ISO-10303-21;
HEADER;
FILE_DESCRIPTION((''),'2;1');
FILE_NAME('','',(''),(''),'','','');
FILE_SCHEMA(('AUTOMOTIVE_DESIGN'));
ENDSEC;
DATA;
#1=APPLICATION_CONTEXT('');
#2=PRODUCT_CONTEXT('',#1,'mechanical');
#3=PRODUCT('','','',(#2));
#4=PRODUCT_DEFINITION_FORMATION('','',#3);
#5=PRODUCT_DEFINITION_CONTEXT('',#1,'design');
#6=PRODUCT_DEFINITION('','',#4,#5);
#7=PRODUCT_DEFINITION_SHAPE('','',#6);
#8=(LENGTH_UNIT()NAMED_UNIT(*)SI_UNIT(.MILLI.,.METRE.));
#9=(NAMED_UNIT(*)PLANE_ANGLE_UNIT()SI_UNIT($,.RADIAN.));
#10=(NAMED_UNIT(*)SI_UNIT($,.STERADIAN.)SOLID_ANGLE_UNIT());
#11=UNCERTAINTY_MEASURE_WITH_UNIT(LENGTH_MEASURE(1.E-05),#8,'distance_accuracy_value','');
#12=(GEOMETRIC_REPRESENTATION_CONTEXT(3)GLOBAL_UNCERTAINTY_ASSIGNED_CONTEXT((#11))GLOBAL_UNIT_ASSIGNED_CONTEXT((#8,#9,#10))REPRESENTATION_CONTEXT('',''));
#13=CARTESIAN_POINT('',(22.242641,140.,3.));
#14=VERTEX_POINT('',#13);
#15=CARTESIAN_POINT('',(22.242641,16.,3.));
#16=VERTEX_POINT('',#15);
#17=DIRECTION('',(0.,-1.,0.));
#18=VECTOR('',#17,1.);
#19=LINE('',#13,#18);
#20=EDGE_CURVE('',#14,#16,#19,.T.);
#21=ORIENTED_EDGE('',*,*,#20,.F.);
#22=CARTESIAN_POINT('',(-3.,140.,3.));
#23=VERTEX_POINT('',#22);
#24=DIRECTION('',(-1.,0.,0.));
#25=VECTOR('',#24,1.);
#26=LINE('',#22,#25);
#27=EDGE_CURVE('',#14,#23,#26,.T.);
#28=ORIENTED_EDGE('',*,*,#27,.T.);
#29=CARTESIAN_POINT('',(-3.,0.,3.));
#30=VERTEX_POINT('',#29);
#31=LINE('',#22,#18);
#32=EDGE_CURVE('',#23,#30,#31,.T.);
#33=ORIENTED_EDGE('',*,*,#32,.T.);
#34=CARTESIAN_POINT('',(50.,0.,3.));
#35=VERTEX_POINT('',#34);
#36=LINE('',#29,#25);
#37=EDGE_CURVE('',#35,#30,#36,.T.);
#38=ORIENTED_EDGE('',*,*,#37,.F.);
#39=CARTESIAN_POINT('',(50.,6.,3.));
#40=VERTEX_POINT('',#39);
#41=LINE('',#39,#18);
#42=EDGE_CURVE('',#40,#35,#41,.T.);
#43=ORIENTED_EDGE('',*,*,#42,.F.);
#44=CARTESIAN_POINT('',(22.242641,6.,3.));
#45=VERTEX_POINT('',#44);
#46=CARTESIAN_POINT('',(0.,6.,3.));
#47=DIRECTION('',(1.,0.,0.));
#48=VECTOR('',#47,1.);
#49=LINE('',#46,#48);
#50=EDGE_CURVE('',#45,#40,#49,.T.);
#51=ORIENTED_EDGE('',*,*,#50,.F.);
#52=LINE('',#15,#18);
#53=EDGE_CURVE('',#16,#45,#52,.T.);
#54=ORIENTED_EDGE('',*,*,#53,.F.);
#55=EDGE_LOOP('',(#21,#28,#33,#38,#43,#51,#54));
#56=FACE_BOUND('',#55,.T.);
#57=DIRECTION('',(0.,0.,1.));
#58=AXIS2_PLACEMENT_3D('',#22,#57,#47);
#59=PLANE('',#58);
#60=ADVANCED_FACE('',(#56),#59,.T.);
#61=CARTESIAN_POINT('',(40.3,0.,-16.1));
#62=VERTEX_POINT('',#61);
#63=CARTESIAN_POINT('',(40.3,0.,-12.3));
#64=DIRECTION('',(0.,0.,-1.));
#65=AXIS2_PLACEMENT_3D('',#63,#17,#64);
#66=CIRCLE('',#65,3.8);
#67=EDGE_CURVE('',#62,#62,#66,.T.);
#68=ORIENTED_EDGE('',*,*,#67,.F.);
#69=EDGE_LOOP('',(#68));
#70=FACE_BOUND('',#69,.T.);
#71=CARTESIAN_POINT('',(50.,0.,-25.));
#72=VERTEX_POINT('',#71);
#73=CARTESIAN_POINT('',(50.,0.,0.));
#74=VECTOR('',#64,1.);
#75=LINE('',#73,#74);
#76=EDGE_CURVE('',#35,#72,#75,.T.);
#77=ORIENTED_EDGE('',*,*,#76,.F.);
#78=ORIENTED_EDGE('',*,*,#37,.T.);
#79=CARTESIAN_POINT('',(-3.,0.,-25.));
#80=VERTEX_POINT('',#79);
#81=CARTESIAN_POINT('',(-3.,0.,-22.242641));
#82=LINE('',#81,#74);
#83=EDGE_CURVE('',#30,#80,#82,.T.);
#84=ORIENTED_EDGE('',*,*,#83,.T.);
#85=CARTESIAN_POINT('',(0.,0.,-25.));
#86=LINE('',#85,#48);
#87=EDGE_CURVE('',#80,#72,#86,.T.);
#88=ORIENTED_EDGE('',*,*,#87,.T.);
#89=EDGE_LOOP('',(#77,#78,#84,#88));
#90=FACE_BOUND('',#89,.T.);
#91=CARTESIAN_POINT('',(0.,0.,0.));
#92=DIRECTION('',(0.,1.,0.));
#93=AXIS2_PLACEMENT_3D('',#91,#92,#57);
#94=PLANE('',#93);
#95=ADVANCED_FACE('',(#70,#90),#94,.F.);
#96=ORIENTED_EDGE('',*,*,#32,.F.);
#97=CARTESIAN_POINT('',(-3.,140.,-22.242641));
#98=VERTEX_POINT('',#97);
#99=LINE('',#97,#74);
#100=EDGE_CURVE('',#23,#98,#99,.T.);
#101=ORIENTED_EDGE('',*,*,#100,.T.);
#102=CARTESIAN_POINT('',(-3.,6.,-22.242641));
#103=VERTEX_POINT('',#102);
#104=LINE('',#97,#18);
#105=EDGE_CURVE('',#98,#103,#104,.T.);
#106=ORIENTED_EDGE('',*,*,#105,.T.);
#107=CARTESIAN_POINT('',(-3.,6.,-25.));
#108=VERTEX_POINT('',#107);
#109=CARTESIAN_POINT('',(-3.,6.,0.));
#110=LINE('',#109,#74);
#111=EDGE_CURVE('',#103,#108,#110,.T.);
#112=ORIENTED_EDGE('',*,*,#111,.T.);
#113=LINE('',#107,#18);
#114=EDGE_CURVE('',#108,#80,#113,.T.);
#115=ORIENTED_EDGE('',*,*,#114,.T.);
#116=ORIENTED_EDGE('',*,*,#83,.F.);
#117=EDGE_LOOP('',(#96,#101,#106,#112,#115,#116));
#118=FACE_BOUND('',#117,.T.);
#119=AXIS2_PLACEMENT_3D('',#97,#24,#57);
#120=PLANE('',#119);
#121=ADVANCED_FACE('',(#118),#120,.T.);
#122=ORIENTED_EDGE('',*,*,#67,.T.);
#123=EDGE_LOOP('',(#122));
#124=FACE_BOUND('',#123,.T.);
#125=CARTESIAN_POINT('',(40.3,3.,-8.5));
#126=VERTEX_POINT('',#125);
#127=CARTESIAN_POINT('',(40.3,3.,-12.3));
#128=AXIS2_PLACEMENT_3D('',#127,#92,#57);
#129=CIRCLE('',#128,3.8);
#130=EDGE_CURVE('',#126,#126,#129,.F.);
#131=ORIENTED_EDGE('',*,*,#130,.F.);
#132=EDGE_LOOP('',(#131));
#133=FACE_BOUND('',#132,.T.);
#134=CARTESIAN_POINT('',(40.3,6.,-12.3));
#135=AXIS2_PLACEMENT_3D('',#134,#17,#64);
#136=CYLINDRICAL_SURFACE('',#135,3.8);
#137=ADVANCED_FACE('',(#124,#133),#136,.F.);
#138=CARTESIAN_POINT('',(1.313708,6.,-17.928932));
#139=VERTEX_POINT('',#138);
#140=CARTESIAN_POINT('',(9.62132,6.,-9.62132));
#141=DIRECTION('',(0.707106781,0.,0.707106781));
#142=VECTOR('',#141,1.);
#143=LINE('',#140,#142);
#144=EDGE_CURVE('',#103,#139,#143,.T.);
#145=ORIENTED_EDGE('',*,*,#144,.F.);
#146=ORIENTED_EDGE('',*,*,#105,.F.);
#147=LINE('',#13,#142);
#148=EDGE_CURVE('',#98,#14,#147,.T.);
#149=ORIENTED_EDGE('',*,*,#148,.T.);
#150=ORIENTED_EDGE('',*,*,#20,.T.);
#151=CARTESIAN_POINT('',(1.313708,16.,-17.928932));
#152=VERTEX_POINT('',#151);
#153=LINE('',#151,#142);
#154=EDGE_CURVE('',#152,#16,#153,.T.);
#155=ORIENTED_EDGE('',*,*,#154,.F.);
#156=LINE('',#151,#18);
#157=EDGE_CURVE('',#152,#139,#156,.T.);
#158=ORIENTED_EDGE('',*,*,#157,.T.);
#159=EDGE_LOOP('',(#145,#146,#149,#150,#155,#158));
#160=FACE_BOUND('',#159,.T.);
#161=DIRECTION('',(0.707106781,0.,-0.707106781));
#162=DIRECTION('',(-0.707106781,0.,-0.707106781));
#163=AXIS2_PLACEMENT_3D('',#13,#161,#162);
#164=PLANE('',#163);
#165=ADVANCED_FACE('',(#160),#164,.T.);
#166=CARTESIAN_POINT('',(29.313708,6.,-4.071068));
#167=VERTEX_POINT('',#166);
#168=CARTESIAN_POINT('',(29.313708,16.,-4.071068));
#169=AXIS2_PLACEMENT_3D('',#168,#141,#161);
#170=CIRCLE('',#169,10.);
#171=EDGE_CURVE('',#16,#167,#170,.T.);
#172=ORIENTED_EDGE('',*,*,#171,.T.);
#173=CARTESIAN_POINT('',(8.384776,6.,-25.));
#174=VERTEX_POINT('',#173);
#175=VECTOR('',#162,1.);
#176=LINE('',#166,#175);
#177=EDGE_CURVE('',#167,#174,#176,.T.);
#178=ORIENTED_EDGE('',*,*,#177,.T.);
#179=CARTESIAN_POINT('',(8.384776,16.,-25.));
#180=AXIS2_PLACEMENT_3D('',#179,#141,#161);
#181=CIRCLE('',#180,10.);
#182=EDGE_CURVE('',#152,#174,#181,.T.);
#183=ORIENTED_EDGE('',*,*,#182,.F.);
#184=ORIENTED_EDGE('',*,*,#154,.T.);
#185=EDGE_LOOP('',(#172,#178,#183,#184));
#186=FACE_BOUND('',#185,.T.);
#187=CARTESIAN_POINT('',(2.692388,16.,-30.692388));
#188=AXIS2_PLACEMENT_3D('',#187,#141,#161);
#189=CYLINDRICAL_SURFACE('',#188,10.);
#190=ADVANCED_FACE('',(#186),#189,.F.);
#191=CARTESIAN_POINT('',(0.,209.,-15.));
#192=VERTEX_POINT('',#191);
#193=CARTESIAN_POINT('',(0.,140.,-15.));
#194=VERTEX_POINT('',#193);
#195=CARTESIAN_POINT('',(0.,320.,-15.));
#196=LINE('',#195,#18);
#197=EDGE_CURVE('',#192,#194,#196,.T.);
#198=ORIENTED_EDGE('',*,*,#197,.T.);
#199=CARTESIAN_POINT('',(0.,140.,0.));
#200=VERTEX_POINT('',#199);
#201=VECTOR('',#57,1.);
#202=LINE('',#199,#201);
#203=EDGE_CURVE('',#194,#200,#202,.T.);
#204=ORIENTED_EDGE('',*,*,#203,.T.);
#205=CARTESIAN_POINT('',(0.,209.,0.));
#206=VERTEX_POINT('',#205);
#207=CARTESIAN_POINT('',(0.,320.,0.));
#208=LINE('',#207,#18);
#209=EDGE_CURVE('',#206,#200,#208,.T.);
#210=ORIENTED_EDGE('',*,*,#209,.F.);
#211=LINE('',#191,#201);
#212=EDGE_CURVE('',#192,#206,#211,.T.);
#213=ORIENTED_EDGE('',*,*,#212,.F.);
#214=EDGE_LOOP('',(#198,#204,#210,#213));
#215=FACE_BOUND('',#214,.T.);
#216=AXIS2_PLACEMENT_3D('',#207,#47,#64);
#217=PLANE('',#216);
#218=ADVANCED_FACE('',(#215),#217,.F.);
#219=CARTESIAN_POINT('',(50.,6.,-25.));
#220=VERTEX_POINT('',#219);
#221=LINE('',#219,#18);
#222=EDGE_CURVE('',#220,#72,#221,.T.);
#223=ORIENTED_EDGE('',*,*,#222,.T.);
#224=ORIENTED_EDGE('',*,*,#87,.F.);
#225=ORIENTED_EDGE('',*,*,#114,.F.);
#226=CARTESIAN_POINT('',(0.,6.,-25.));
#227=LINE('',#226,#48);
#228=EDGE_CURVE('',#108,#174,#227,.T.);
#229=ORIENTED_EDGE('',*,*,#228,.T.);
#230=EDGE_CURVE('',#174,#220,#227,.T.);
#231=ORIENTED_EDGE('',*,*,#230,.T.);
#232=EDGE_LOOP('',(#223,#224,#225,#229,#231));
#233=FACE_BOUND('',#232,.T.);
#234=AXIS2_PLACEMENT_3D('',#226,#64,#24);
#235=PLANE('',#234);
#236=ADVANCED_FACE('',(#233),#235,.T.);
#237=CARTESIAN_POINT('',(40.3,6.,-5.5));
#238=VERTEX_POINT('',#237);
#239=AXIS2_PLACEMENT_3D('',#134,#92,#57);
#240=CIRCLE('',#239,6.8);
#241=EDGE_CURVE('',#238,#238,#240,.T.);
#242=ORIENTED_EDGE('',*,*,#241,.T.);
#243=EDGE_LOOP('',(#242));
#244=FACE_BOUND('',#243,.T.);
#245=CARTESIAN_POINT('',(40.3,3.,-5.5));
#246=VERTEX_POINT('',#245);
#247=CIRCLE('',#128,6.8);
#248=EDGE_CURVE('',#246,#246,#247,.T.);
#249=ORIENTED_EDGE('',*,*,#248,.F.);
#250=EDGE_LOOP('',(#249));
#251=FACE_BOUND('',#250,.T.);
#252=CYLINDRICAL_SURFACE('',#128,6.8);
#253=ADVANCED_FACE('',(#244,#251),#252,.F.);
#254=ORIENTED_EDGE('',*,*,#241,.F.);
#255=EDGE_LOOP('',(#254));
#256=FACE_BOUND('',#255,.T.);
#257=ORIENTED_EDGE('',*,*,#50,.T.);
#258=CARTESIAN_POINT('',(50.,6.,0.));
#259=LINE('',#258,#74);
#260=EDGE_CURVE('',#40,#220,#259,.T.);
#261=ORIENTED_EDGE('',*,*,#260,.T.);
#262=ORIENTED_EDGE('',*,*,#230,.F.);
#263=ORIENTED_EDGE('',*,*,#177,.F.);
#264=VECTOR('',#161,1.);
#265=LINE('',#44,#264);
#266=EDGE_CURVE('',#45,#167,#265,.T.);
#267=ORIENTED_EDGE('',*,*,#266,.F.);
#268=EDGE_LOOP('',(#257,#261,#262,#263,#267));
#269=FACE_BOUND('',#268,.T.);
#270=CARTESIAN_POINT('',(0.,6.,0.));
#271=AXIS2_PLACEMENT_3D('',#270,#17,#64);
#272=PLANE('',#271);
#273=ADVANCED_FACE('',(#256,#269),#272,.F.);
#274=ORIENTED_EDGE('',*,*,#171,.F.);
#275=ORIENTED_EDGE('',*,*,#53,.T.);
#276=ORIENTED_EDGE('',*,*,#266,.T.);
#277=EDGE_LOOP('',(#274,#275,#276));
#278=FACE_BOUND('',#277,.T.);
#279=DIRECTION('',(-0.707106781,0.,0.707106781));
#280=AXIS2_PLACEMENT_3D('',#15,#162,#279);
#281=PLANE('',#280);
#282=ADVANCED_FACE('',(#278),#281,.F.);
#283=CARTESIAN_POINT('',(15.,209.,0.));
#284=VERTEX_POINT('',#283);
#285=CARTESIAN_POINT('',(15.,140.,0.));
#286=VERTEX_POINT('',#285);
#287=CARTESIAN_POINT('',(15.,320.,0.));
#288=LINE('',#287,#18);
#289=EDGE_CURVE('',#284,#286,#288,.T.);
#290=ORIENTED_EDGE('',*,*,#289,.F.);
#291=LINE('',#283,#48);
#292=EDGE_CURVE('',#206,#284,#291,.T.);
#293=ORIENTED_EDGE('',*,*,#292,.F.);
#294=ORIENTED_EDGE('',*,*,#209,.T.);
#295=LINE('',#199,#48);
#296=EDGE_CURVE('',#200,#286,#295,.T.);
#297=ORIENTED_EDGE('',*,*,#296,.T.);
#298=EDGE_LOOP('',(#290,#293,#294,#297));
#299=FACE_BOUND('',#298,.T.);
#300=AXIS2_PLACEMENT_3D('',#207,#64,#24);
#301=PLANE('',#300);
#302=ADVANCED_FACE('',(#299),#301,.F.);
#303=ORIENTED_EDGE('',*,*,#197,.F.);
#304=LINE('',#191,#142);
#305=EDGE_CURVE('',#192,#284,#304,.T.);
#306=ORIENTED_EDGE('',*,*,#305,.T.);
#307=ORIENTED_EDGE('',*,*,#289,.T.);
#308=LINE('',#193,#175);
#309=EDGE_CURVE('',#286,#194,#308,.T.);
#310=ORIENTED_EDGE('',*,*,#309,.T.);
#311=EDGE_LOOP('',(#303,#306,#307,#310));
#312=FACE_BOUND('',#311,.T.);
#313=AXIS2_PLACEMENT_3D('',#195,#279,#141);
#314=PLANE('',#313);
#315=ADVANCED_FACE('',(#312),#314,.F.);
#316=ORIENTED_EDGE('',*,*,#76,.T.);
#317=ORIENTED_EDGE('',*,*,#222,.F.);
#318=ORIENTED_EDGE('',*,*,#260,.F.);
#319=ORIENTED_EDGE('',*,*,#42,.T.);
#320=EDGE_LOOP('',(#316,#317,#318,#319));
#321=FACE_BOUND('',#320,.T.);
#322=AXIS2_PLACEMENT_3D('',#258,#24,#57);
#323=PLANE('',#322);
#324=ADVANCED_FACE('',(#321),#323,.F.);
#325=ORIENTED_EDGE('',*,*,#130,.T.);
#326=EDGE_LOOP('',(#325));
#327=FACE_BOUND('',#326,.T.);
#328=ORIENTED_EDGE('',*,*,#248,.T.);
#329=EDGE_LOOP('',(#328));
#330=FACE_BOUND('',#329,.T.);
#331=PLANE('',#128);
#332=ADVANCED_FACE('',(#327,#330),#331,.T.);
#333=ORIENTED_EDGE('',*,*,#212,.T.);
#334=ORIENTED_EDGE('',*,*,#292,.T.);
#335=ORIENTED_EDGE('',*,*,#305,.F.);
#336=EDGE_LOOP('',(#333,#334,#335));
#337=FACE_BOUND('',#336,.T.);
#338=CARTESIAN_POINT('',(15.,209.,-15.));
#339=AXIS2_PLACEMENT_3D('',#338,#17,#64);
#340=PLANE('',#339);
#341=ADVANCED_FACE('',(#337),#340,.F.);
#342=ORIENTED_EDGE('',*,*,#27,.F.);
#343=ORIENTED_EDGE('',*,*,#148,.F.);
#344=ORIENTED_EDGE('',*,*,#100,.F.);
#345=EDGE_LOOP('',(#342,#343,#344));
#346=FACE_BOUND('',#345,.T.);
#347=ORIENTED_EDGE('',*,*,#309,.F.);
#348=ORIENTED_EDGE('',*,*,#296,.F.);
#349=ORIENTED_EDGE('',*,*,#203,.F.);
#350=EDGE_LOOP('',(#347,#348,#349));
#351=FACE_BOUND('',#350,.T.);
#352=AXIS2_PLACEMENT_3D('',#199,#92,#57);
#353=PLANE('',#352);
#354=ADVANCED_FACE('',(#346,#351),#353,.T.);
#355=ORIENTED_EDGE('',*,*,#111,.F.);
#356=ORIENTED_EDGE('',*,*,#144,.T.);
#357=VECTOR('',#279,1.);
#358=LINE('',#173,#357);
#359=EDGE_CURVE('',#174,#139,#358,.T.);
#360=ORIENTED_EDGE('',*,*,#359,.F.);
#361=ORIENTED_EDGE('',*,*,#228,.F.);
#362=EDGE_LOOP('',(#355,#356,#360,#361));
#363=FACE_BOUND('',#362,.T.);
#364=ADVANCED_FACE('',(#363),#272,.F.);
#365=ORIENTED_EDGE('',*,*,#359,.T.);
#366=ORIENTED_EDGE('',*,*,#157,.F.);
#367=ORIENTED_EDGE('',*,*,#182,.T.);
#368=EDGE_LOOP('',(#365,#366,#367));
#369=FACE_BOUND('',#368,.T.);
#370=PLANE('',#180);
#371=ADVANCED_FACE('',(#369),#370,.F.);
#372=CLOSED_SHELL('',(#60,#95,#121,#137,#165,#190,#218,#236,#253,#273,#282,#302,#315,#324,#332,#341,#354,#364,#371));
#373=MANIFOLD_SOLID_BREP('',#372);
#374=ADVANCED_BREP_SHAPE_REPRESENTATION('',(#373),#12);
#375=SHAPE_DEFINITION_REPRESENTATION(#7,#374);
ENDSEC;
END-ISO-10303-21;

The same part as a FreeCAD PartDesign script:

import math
import FreeCAD as App
import Part
import Sketcher
Q = App.Units.Quantity


def add_polygon(sketch, points):
    """Adds a closed chain of lines whose ends are joined by coincident constraints."""
    first, n = sketch.GeometryCount, len(points)
    for a, b in zip(points, points[1:] + points[:1]):
        sketch.addGeometry(Part.LineSegment(App.Vector(*a, 0), App.Vector(*b, 0)), False)
    for i in range(n):
        sketch.addConstraint(Sketcher.Constraint("Coincident", first + i, 2, first + (i + 1) % n, 1))

doc = App.newDocument("Part")
body = doc.addObject("PartDesign::Body", "Body")

sketch1 = doc.addObject("Sketcher::SketchObject", "Sketch")
body.addObject(sketch1)
sketch1.AttachmentSupport = (doc.XZ_Plane, [""])
sketch1.MapMode = "FlatFace"
add_polygon(sketch1, [(0, -15), (0, 0), (15, 0)])
sketch1.addConstraint(Sketcher.Constraint("Vertical", 0))
sketch1.addConstraint(Sketcher.Constraint("Horizontal", 1))
sketch1.addConstraint(Sketcher.Constraint("Coincident", 0, 2, -1, 1))
sketch1.addConstraint(Sketcher.Constraint("Equal", 1, 0))
sketch1.addConstraint(Sketcher.Constraint("DistanceX", 1, 1, 1, 2, 15.0))
pad1 = doc.addObject("PartDesign::Pad", "Pad")
body.addObject(pad1)
pad1.Profile = sketch1
pad1.Length = 320
pad1.Reversed = True

sketch2 = doc.addObject("Sketcher::SketchObject", "Sketch001")
body.addObject(sketch2)
sketch2.AttachmentSupport = (doc.XY_Plane, [""])
sketch2.MapMode = "FlatFace"
add_polygon(sketch2, [(0, 320), (0, 209), (15, 209), (15, 320)])
sketch2.addConstraint(Sketcher.Constraint("Vertical", 0))
sketch2.addConstraint(Sketcher.Constraint("Horizontal", 1))
sketch2.addConstraint(Sketcher.Constraint("Vertical", 2))
sketch2.addConstraint(Sketcher.Constraint("Horizontal", 3))
sketch2.addConstraint(Sketcher.Constraint("PointOnObject", 0, 2, -2))
sketch2.addConstraint(Sketcher.Constraint("DistanceX", 1, 1, 1, 2, 15.0))
sketch2.addConstraint(Sketcher.Constraint("DistanceY", 0, 2, 0, 1, 111.0))
sketch2.addConstraint(Sketcher.Constraint("DistanceY", -1, 1, 0, 2, 209.0))
pocket1 = doc.addObject("PartDesign::Pocket", "Pocket")
body.addObject(pocket1)
pocket1.Profile = sketch2
pocket1.Type = "ThroughAll"

sketch3 = doc.addObject("Sketcher::SketchObject", "Sketch002")
body.addObject(sketch3)
sketch3.AttachmentSupport = (doc.XZ_Plane, [""])
sketch3.MapMode = "FlatFace"
add_polygon(sketch3, [(-3, 3), (-3, -22), (22, 3)])
sketch3.addConstraint(Sketcher.Constraint("Vertical", 0))
sketch3.addConstraint(Sketcher.Constraint("Horizontal", 2))
sketch3.addConstraint(Sketcher.Constraint("Equal", 2, 0))
sketch3.addConstraint(Sketcher.Constraint("DistanceX", 0, 2, -1, 1, 3.0))
sketch3.addConstraint(Sketcher.Constraint("DistanceY", -1, 1, 1, 2, 3.0))
sketch3.addConstraint(Sketcher.Constraint("DistanceX", 2, 2, 2, 1, 25.242641))
pad2 = doc.addObject("PartDesign::Pad", "Pad001")
body.addObject(pad2)
pad2.Profile = sketch3
pad2.Length = 140
pad2.Reversed = True

sketch4 = doc.addObject("Sketcher::SketchObject", "Sketch003")
body.addObject(sketch4)
sketch4.AttachmentSupport = (doc.XZ_Plane, [""])
sketch4.MapMode = "FlatFace"
add_polygon(sketch4, [(22.2, 3), (-3, -22.2), (-3, -25), (50, -25), (50, 3)])
sketch4.addGeometry(Part.Circle(App.Vector(40.3, -12.3, 0), App.Vector(0, 0, 1), 3.8), False)
sketch4.addConstraint(Sketcher.Constraint("Vertical", 1))
sketch4.addConstraint(Sketcher.Constraint("Horizontal", 2))
sketch4.addConstraint(Sketcher.Constraint("Vertical", 3))
sketch4.addConstraint(Sketcher.Constraint("Horizontal", 4))
sketch4.addConstraint(Sketcher.Constraint("Diameter", 5, 7.6))
sketch4.addConstraint(Sketcher.Constraint("DistanceX", 2, 1, 2, 2, 53.0))
sketch4.addConstraint(Sketcher.Constraint("DistanceY", 3, 1, 3, 2, 28.0))
sketch4.addConstraint(Sketcher.Constraint("Angle", 0, Q("-135 deg")))
sketch4.addConstraint(Sketcher.Constraint("DistanceX", 0, 2, -1, 1, 3.0))
sketch4.addConstraint(Sketcher.Constraint("DistanceY", 1, 2, -1, 1, 25.0))
sketch4.addConstraint(Sketcher.Constraint("DistanceX", -1, 1, 5, 3, 40.3))
sketch4.addConstraint(Sketcher.Constraint("DistanceY", 5, 3, -1, 1, 12.3))
sketch4.addConstraint(Sketcher.Constraint("DistanceX", 4, 2, 4, 1, 27.757359))
pad3 = doc.addObject("PartDesign::Pad", "Pad002")
body.addObject(pad3)
pad3.Profile = sketch4
pad3.Length = 6
pad3.Reversed = True

sketch5 = doc.addObject("Sketcher::SketchObject", "Sketch004")
body.addObject(sketch5)
sketch5.AttachmentSupport = (doc.XZ_Plane, [""])
sketch5.MapMode = "FlatFace"
sketch5.AttachmentOffset = App.Placement(App.Vector(0, 0, -6), App.Rotation())
add_polygon(sketch5, [(22, 3), (29, -4), (8, -25), (1, -18)])
sketch5.addConstraint(Sketcher.Constraint("Perpendicular", 0, 1))
sketch5.addConstraint(Sketcher.Constraint("Perpendicular", 1, 2))
sketch5.addConstraint(Sketcher.Constraint("Perpendicular", 2, 3))
sketch5.addConstraint(Sketcher.Constraint("Angle", 0, Q("-45 deg")))
sketch5.addConstraint(Sketcher.Constraint("Distance", 0, 10.0))
sketch5.addConstraint(Sketcher.Constraint("DistanceY", 1, 2, -1, 1, 25.0))
sketch5.addConstraint(Sketcher.Constraint("DistanceY", -1, 1, 3, 2, 3.0))
sketch5.addConstraint(Sketcher.Constraint("DistanceX", -1, 1, 0, 2, 29.313708))
pad4 = doc.addObject("PartDesign::Pad", "Pad003")
body.addObject(pad4)
pad4.Profile = sketch5
pad4.Length = 10
pad4.Reversed = True

sketch6 = doc.addObject("Sketcher::SketchObject", "Sketch005")
body.addObject(sketch6)
sketch6.Placement = App.Placement(App.Vector(12.62132, 0, 12.62132), App.Rotation(App.Vector(0.707106781, 0, -0.707106781), App.Vector(0, 0.999999999, 0), App.Vector(0.707106781, 0, 0.707106781), "ZXY"))
sketch6.addGeometry(Part.LineSegment(App.Vector(24, 16, 0), App.Vector(14, 16, 0)), False)
sketch6.addGeometry(Part.ArcOfCircle(Part.Circle(App.Vector(24, 16, 0), App.Vector(0, 0, 1), 10), math.radians(180), math.radians(270)), False)
sketch6.addGeometry(Part.LineSegment(App.Vector(24, 6, 0), App.Vector(24, 16, 0)), False)
sketch6.addConstraint(Sketcher.Constraint("Coincident", 0, 2, 1, 1))
sketch6.addConstraint(Sketcher.Constraint("Coincident", 1, 2, 2, 1))
sketch6.addConstraint(Sketcher.Constraint("Coincident", 2, 2, 0, 1))
sketch6.addConstraint(Sketcher.Constraint("Horizontal", 0))
sketch6.addConstraint(Sketcher.Constraint("Vertical", 2))
sketch6.addConstraint(Sketcher.Constraint("Coincident", 2, 2, 1, 3))
sketch6.addConstraint(Sketcher.Constraint("Radius", 1, 10.0))
sketch6.addConstraint(Sketcher.Constraint("DistanceY", -1, 1, 1, 3, 16.0))
sketch6.addConstraint(Sketcher.Constraint("DistanceX", -1, 1, 1, 3, 23.606602))
pocket2 = doc.addObject("PartDesign::Pocket", "Pocket001")
body.addObject(pocket2)
pocket2.Profile = sketch6
pocket2.Type = "ThroughAll"

sketch7 = doc.addObject("Sketcher::SketchObject", "Sketch006")
body.addObject(sketch7)
sketch7.AttachmentSupport = (doc.XZ_Plane, [""])
sketch7.MapMode = "FlatFace"
sketch7.AttachmentOffset = App.Placement(App.Vector(0, 0, -6), App.Rotation())
sketch7.addGeometry(Part.Circle(App.Vector(40, -12, 0), App.Vector(0, 0, 1), 7), False)
sketch7.addConstraint(Sketcher.Constraint("Diameter", 0, 13.6))
sketch7.addConstraint(Sketcher.Constraint("DistanceX", -1, 1, 0, 3, 40.3))
sketch7.addConstraint(Sketcher.Constraint("DistanceY", 0, 3, -1, 1, 12.3))
pocket3 = doc.addObject("PartDesign::Pocket", "Pocket002")
body.addObject(pocket3)
pocket3.Profile = sketch7
pocket3.Length = 3
pocket3.Reversed = True

doc.recompute()
